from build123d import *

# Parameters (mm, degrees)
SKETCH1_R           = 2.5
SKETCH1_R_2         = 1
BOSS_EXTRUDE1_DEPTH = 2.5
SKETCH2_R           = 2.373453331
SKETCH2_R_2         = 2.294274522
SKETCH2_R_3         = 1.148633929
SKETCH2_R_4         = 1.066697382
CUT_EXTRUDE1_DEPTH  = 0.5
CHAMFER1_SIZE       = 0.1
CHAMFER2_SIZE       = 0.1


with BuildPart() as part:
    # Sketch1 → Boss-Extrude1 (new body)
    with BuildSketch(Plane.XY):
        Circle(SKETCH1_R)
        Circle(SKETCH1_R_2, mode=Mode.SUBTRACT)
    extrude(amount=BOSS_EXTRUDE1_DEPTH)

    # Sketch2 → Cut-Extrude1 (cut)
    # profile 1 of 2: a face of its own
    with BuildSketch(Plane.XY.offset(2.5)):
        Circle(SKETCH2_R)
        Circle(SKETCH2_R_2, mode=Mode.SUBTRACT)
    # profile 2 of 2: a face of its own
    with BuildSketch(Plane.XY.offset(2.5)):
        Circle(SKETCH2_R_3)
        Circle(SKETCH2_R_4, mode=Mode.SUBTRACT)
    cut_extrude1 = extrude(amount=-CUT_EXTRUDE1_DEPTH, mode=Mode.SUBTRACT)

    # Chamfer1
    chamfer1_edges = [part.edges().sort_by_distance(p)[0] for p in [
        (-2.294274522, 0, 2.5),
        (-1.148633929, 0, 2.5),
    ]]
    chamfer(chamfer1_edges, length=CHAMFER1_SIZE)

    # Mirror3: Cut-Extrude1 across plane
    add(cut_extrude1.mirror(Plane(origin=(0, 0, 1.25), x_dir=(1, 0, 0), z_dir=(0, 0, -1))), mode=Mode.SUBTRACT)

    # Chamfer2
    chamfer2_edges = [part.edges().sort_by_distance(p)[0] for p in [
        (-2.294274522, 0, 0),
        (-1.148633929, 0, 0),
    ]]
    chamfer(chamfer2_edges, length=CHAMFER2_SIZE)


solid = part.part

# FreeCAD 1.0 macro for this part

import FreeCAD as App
import Part
import Sketcher
from FreeCAD import Vector


def edges_at(feature, points):
    """Names of the edges that pass closest to the given points."""
    edges = feature.Shape.Edges
    near = lambda p: min(range(len(edges)), key=lambda i: edges[i].distToShape(Part.Vertex(*p))[0])
    return sorted({f"Edge{near(p) + 1}" for p in points})

doc = App.newDocument("Part")
params = doc.addObject("Spreadsheet::Sheet", "Params")
for row, (alias, value) in enumerate([
    ("sketch1_diameter", "5 mm"),
    ("sketch1_diameter2", "2 mm"),
    ("pad1_length", "2.5 mm"),
    ("pocket1_length", "0.5 mm"),
    ("chamfer_size", "0.1 mm"),
    ("chamfer2_size", "0.1 mm"),
], start=1):
    params.set(f"A{row}", alias)
    params.set(f"B{row}", "=" + value)
    params.setAlias(f"B{row}", alias)

body = doc.addObject("PartDesign::Body", "Body")

sketch1 = body.newObject("Sketcher::SketchObject", "Sketch")
sketch1.AttachmentSupport = (doc.getObject("XY_Plane"), [""])
sketch1.MapMode = "FlatFace"
sketch1.addGeometry([
    Part.Circle(Vector(0, 0, 0), Vector(0, 0, 1), 2.5),
    Part.Circle(Vector(0, 0, 0), Vector(0, 0, 1), 1),
], False)
sketch1.addConstraint([
    Sketcher.Constraint("Coincident", 0, 3, -1, 1),
    Sketcher.Constraint("Coincident", 1, 3, -1, 1),
    Sketcher.Constraint("Diameter", 0, 5.0),
    Sketcher.Constraint("Diameter", 1, 2.0),
])
sketch1.setExpression("Constraints[2]", "Params.sketch1_diameter")
sketch1.setExpression("Constraints[3]", "Params.sketch1_diameter2")
pad1 = body.newObject("PartDesign::Pad", "Pad")
pad1.Profile = sketch1
pad1.setExpression("Length", "Params.pad1_length")

sketch2 = body.newObject("Sketcher::SketchObject", "Sketch001")
sketch2.AttachmentSupport = (doc.getObject("XY_Plane"), [""])
sketch2.MapMode = "FlatFace"
sketch2.AttachmentOffset = App.Placement(Vector(0, 0, 2.5), App.Rotation())
sketch2.addGeometry([
    Part.Circle(Vector(0, 0, 0), Vector(0, 0, 1), 2.4),
    Part.Circle(Vector(0, 0, 0), Vector(0, 0, 1), 2.3),
    Part.Circle(Vector(0, 0, 0), Vector(0, 0, 1), 1.1),
    Part.Circle(Vector(0, 0, 0), Vector(0, 0, 1), 1.1),
], False)
sketch2.addConstraint([
    Sketcher.Constraint("Coincident", 0, 3, -1, 1),
    Sketcher.Constraint("Coincident", 1, 3, -1, 1),
    Sketcher.Constraint("Coincident", 2, 3, -1, 1),
    Sketcher.Constraint("Coincident", 3, 3, -1, 1),
    Sketcher.Constraint("Diameter", 1, 4.588549),
    Sketcher.Constraint("Diameter", 0, 4.746907),
    Sketcher.Constraint("Diameter", 2, 2.297268),
    Sketcher.Constraint("Diameter", 3, 2.133395),
])
pocket1 = body.newObject("PartDesign::Pocket", "Pocket")
pocket1.Profile = sketch2
pocket1.setExpression("Length", "Params.pocket1_length")
doc.recompute()

chamfer = body.newObject("PartDesign::Chamfer", "Chamfer")
chamfer.Base = (pocket1, edges_at(pocket1, [(-2.294, 0, 2.5), (-1.149, 0, 2.5)]))
chamfer.setExpression("Size", "Params.chamfer_size")
doc.recompute()

datumplane = body.newObject("PartDesign::Plane", "DatumPlane")
datumplane.AttachmentSupport = (doc.getObject("XY_Plane"), [""])
datumplane.MapMode = "FlatFace"
datumplane.AttachmentOffset = App.Placement(Vector(0, 0, 1.25), App.Rotation())
mirrored = body.newObject("PartDesign::Mirrored", "Mirrored")
mirrored.Originals = [pocket1]
mirrored.MirrorPlane = (datumplane, [""])
body.Tip = mirrored
doc.recompute()

chamfer2 = body.newObject("PartDesign::Chamfer", "Chamfer001")
chamfer2.Base = (mirrored, edges_at(mirrored, [(-2.294, 0, 0), (-1.149, 0, 0)]))
chamfer2.setExpression("Size", "Params.chamfer2_size")

doc.recompute()
